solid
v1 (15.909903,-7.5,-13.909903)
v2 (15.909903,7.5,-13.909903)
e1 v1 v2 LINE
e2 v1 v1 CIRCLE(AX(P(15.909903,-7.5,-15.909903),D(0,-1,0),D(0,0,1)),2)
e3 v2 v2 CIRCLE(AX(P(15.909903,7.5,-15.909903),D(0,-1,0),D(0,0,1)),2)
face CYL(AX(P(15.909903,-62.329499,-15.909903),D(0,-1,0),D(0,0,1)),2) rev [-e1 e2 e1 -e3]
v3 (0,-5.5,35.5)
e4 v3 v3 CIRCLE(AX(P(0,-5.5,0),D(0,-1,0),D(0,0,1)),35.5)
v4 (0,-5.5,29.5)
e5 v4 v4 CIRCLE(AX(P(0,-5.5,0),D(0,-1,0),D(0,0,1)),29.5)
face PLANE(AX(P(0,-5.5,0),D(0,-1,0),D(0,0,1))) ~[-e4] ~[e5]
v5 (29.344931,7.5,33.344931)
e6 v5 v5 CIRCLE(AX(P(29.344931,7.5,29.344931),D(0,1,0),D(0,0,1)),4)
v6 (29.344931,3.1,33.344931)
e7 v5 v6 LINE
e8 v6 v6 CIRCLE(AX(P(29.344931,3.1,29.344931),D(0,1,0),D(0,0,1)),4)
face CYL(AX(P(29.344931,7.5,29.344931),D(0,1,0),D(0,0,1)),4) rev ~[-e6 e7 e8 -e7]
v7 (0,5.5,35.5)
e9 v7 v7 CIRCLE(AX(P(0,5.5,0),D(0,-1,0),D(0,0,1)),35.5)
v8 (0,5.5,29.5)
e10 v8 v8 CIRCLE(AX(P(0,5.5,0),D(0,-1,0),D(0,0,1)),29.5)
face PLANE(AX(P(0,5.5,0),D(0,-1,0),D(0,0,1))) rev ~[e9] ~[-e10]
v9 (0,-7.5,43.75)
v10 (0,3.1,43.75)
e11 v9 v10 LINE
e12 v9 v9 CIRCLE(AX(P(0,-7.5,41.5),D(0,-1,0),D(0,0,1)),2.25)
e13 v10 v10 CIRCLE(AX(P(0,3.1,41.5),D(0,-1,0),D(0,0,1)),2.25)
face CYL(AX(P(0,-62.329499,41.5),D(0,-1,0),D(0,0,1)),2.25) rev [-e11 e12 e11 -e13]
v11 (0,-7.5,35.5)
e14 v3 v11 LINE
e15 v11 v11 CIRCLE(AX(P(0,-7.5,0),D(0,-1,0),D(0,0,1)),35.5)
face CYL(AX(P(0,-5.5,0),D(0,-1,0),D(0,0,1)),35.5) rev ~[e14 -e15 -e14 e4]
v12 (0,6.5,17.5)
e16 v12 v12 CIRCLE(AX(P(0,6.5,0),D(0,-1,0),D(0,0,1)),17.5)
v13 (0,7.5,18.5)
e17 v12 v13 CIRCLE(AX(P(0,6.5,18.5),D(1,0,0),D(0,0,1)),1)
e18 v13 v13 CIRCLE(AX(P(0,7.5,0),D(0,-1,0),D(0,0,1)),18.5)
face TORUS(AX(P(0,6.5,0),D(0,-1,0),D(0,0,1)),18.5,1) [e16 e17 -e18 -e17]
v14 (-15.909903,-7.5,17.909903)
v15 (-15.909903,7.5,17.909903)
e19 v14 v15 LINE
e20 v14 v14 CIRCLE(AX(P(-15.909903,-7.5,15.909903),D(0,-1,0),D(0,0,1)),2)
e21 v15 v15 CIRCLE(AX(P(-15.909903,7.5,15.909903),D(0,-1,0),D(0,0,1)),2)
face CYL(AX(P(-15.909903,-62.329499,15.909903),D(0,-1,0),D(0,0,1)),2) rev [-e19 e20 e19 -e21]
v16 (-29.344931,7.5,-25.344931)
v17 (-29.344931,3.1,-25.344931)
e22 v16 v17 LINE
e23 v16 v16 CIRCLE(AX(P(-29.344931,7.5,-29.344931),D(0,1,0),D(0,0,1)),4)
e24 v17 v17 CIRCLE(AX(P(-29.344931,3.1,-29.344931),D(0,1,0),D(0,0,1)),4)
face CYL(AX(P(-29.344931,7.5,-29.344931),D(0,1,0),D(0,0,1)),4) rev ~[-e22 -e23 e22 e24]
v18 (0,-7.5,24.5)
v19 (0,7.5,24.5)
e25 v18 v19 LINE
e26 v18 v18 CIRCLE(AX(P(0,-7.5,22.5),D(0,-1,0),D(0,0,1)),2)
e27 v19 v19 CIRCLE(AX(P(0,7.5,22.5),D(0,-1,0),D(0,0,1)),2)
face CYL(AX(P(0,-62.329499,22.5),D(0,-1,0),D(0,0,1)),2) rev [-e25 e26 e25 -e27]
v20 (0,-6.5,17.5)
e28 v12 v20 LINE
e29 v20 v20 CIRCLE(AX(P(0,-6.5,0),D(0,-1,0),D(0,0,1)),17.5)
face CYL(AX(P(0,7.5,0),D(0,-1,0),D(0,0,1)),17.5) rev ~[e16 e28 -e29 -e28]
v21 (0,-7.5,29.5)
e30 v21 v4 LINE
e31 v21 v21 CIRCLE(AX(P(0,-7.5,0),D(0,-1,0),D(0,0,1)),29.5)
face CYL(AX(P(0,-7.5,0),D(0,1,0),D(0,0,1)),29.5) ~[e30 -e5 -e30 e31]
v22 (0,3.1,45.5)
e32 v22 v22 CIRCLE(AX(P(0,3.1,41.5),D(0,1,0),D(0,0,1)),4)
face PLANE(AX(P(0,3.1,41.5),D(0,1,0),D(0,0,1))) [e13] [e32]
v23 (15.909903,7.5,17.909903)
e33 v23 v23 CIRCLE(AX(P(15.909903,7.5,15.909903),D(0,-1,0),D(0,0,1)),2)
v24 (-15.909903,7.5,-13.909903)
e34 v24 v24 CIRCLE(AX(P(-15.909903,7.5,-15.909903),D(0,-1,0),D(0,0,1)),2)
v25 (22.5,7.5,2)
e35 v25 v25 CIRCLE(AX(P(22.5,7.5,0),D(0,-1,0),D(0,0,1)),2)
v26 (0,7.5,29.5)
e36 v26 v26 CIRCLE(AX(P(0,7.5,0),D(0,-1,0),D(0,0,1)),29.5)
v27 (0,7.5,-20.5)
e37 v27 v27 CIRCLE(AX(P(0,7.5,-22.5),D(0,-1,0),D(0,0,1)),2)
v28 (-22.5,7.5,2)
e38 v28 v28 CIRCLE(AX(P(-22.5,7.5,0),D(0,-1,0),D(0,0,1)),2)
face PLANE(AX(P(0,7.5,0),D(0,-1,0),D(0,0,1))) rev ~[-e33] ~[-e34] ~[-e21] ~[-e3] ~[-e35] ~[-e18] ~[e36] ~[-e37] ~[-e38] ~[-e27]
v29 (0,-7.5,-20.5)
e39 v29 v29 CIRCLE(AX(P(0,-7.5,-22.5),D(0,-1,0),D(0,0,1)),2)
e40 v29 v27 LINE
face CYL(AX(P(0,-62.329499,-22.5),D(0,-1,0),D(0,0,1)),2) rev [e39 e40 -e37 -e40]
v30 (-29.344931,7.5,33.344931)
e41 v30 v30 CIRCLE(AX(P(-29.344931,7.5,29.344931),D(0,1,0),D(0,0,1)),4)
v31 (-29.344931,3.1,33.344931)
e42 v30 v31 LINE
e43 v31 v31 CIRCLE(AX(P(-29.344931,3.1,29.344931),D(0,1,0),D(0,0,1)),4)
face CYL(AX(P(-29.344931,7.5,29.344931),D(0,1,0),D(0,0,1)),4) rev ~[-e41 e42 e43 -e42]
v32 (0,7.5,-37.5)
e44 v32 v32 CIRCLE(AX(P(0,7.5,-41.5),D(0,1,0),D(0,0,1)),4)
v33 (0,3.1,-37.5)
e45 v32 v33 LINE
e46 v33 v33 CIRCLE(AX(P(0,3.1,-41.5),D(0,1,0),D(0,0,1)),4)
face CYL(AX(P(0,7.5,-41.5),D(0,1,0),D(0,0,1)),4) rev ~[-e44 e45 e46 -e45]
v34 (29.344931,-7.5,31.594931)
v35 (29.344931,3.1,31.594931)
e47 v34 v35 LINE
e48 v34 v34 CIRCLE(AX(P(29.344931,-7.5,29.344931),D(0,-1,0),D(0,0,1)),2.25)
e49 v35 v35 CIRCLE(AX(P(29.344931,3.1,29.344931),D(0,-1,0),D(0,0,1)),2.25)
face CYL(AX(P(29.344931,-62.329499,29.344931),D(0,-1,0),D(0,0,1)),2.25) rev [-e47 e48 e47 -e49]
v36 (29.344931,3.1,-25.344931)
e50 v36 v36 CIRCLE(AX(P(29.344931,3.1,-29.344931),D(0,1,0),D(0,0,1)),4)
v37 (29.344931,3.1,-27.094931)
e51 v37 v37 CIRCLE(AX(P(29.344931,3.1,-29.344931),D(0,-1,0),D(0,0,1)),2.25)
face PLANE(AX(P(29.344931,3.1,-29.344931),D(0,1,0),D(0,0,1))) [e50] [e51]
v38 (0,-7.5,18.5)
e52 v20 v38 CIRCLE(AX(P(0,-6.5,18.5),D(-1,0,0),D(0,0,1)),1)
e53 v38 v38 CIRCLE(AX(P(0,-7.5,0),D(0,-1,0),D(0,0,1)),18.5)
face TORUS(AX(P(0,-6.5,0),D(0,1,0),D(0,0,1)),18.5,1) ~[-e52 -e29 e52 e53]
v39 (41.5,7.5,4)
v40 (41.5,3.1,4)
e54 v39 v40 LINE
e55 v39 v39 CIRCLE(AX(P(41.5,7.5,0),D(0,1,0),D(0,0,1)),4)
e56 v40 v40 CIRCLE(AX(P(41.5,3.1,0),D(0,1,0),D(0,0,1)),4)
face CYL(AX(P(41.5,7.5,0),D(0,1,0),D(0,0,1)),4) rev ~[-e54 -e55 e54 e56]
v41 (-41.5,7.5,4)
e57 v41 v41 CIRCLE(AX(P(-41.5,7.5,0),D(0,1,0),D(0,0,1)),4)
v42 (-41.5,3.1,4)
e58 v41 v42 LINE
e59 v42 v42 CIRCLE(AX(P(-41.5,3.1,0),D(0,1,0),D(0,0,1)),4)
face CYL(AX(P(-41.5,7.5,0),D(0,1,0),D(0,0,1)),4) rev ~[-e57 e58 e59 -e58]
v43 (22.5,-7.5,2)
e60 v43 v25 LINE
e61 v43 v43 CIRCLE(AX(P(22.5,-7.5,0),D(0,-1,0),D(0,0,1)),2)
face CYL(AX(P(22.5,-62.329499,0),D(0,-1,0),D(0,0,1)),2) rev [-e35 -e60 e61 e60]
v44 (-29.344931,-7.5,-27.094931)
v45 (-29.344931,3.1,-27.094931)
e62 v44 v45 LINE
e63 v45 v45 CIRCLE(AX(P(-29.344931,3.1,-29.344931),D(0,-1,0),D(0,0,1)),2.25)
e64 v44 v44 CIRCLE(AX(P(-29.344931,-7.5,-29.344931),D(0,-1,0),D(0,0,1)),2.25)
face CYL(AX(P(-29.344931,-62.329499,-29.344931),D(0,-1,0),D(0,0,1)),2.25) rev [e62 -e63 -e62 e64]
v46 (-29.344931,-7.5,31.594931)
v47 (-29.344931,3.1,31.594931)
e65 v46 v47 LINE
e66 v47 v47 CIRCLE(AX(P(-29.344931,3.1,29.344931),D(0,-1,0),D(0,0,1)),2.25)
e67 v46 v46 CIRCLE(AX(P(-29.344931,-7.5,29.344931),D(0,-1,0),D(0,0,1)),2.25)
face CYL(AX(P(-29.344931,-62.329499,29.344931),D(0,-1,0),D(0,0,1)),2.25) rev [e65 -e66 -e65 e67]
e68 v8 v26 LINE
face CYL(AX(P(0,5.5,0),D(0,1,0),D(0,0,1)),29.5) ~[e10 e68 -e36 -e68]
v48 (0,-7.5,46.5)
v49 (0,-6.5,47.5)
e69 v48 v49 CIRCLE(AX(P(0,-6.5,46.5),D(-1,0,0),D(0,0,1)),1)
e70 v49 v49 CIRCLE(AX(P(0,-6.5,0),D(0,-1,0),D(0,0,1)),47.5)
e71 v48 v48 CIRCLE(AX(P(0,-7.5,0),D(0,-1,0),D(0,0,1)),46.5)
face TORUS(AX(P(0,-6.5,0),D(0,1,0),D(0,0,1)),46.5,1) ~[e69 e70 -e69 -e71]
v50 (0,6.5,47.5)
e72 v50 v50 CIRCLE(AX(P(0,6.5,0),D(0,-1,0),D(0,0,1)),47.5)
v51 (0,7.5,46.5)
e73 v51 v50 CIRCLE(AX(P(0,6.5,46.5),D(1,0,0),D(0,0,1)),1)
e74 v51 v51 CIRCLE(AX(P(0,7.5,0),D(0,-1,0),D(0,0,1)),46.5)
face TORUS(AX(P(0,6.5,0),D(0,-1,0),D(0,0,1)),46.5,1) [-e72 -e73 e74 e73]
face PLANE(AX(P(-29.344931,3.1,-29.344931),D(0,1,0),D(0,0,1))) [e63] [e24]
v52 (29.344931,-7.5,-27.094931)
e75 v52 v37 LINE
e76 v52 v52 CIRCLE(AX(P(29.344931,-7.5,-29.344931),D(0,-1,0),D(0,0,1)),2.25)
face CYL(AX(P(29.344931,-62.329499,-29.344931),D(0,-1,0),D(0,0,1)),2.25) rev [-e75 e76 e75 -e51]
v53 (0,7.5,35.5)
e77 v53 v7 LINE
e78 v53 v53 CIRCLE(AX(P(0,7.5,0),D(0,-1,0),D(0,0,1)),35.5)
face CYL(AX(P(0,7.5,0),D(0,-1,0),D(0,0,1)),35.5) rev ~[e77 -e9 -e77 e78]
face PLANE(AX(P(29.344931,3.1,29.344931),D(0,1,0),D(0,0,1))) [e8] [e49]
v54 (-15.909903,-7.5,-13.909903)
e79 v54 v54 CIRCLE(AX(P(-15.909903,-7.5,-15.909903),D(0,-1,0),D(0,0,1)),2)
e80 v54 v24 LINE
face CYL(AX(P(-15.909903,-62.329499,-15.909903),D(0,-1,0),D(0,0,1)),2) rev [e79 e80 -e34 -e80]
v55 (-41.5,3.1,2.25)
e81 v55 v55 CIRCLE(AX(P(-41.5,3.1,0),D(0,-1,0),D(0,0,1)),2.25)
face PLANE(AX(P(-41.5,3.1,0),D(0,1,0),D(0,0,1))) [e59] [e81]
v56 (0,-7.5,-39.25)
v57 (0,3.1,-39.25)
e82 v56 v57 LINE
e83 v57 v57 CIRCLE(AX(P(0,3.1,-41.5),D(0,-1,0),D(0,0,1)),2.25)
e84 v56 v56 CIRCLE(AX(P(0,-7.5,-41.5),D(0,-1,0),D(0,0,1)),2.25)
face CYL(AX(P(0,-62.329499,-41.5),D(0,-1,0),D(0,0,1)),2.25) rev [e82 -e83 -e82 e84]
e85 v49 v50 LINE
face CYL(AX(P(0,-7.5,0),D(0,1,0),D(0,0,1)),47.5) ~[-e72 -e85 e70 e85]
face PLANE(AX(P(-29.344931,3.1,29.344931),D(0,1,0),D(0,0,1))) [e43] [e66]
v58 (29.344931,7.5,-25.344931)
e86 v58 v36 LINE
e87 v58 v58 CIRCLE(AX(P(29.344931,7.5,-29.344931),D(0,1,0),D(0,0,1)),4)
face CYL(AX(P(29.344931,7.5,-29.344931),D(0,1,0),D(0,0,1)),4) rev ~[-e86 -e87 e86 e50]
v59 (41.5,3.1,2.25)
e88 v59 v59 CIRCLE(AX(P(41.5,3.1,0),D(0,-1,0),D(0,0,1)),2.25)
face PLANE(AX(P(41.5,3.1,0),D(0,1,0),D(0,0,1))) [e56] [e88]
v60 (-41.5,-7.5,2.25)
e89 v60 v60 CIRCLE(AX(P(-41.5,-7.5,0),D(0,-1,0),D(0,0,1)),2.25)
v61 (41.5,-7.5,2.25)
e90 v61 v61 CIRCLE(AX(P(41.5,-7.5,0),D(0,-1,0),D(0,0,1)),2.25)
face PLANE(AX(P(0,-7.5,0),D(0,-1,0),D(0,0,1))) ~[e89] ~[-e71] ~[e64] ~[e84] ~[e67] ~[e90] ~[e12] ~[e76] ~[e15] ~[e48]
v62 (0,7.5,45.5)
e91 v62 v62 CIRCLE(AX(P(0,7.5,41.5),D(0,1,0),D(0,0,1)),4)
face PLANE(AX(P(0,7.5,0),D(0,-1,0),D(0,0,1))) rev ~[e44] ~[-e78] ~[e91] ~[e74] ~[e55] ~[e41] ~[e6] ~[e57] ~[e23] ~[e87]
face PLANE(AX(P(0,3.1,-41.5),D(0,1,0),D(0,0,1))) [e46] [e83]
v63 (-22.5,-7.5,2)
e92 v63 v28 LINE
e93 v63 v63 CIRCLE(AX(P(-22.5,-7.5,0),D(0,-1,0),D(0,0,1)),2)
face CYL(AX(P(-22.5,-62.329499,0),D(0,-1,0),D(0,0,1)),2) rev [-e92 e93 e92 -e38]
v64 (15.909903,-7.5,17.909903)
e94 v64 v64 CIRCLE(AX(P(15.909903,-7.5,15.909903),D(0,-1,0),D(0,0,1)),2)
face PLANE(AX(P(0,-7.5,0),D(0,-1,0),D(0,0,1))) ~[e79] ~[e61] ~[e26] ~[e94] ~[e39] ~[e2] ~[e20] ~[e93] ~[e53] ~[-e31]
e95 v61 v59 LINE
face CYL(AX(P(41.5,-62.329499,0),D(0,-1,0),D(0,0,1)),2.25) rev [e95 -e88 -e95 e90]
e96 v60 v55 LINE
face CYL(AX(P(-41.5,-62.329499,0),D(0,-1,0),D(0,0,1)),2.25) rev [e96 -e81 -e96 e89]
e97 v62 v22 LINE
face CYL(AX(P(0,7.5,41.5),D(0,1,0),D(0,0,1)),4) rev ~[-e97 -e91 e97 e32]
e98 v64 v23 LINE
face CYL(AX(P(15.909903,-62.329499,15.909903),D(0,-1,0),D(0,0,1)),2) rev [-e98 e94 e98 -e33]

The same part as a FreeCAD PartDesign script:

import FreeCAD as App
import Part
import Sketcher


def edges_at(feature, points):
    """Names of the edges that pass closest to the given points."""
    edges = feature.Shape.Edges
    near = lambda p: min(range(len(edges)), key=lambda i: edges[i].distToShape(Part.Vertex(*p))[0])
    return sorted({f"Edge{near(p) + 1}" for p in points})


def add_polygon(sketch, points):
    """Adds a closed chain of lines whose ends are joined by coincident constraints."""
    first, n = sketch.GeometryCount, len(points)
    for a, b in zip(points, points[1:] + points[:1]):
        sketch.addGeometry(Part.LineSegment(App.Vector(*a, 0), App.Vector(*b, 0)), False)
    for i in range(n):
        sketch.addConstraint(Sketcher.Constraint("Coincident", first + i, 2, first + (i + 1) % n, 1))

doc = App.newDocument("Part")
params = doc.addObject("Spreadsheet::Sheet", "Params")
for row, (alias, value) in enumerate([
    ("sketch1_width", "12 mm"),
    ("sketch1_width2", "6 mm"),
    ("sketch1_height", "15 mm"),
    ("sketch1_height2", "2 mm"),
    ("revolution_angle", "360 deg"),
    ("sketch2_diameter", "4 mm"),
    ("sketch2_diameter2", "4.5 mm"),
    ("sketch3_diameter", "8 mm"),
    ("pocket2_length", "4.4 mm"),
    ("fillet_radius", "1 mm"),
], start=1):
    params.set(f"A{row}", alias)
    params.set(f"B{row}", "=" + value)
    params.setAlias(f"B{row}", alias)

body = doc.addObject("PartDesign::Body", "Body")

sketch1 = body.newObject("Sketcher::SketchObject", "Sketch")
sketch1.AttachmentSupport = (doc.getObject("XY_Plane"), [""])
sketch1.MapMode = "FlatFace"
add_polygon(sketch1, [(17.5, 7.5), (17.5, -7.5), (29.5, -7.5), (29.5, -5.5), (35.5, -5.5), (35.5, -7.5), (47.5, -7.5), (47.5, 7.5), (35.5, 7.5), (35.5, 5.5), (29.5, 5.5), (29.5, 7.5)])
sketch1.addConstraint([
    Sketcher.Constraint("Vertical", 0),
    Sketcher.Constraint("Horizontal", 1),
    Sketcher.Constraint("Vertical", 2),
    Sketcher.Constraint("Horizontal", 3),
    Sketcher.Constraint("Vertical", 4),
    Sketcher.Constraint("Horizontal", 5),
    Sketcher.Constraint("Vertical", 6),
    Sketcher.Constraint("Horizontal", 7),
    Sketcher.Constraint("Vertical", 8),
    Sketcher.Constraint("Horizontal", 9),
    Sketcher.Constraint("Vertical", 10),
    Sketcher.Constraint("Horizontal", 11),
    Sketcher.Constraint("Symmetric", 4, 2, 7, 2, -1),
    Sketcher.Constraint("Symmetric", 2, 2, 9, 2, -1),
    Sketcher.Constraint("Horizontal", 1, 2, 4, 2),
    Sketcher.Constraint("Horizontal", 7, 2, 10, 2),
    Sketcher.Constraint("Equal", 1, 5),
    Sketcher.Constraint("DistanceX", 1, 1, 1, 2, 12.0),
    Sketcher.Constraint("DistanceX", 3, 1, 3, 2, 6.0),
    Sketcher.Constraint("DistanceY", 0, 2, 0, 1, 15.0),
    Sketcher.Constraint("DistanceY", 2, 1, 2, 2, 2.0),
    Sketcher.Constraint("DistanceX", -1, 1, 0, 2, 17.5),
])
sketch1.setExpression("Constraints[29]", "Params.sketch1_width")
sketch1.setExpression("Constraints[30]", "Params.sketch1_width2")
sketch1.setExpression("Constraints[31]", "Params.sketch1_height")
sketch1.setExpression("Constraints[32]", "Params.sketch1_height2")
revolution = body.newObject("PartDesign::Revolution", "Revolution")
revolution.Profile = sketch1
revolution.ReferenceAxis = (sketch1, ["V_Axis"])
revolution.setExpression("Angle", "Params.revolution_angle")

sketch2 = body.newObject("Sketcher::SketchObject", "Sketch001")
sketch2.AttachmentSupport = (doc.getObject("XZ_Plane"), [""])
sketch2.MapMode = "FlatFace"
sketch2.AttachmentOffset = App.Placement(App.Vector(0, 0, -7.5), App.Rotation())
sketch2.addGeometry([
    Part.Circle(App.Vector(0, -22.5, 0), App.Vector(0, 0, 1), 2),
    Part.Circle(App.Vector(0, -41.5, 0), App.Vector(0, 0, 1), 2.2),
    Part.Circle(App.Vector(15.9, -15.9, 0), App.Vector(0, 0, 1), 2),
    Part.Circle(App.Vector(22.5, 0, 0), App.Vector(0, 0, 1), 2),
    Part.Circle(App.Vector(15.9, 15.9, 0), App.Vector(0, 0, 1), 2),
    Part.Circle(App.Vector(0, 22.5, 0), App.Vector(0, 0, 1), 2),
    Part.Circle(App.Vector(-15.9, 15.9, 0), App.Vector(0, 0, 1), 2),
    Part.Circle(App.Vector(-22.5, 0, 0), App.Vector(0, 0, 1), 2),
    Part.Circle(App.Vector(-15.9, -15.9, 0), App.Vector(0, 0, 1), 2),
    Part.Circle(App.Vector(29.3, -29.3, 0), App.Vector(0, 0, 1), 2.2),
    Part.Circle(App.Vector(41.5, 0, 0), App.Vector(0, 0, 1), 2.2),
    Part.Circle(App.Vector(29.3, 29.3, 0), App.Vector(0, 0, 1), 2.2),
    Part.Circle(App.Vector(0, 41.5, 0), App.Vector(0, 0, 1), 2.2),
    Part.Circle(App.Vector(-29.3, 29.3, 0), App.Vector(0, 0, 1), 2.2),
    Part.Circle(App.Vector(-41.5, 0, 0), App.Vector(0, 0, 1), 2.2),
    Part.Circle(App.Vector(-29.3, -29.3, 0), App.Vector(0, 0, 1), 2.2),
], False)
sketch2.addConstraint([
    Sketcher.Constraint("Equal", 0, 2),
    Sketcher.Constraint("Equal", 2, 3),
    Sketcher.Constraint("Equal", 3, 4),
    Sketcher.Constraint("Equal", 4, 5),
    Sketcher.Constraint("Equal", 5, 6),
    Sketcher.Constraint("Equal", 6, 7),
    Sketcher.Constraint("Equal", 7, 8),
    Sketcher.Constraint("Equal", 1, 9),
    Sketcher.Constraint("Equal", 9, 10),
    Sketcher.Constraint("Equal", 10, 11),
    Sketcher.Constraint("Equal", 11, 12),
    Sketcher.Constraint("Equal", 12, 13),
    Sketcher.Constraint("Equal", 13, 14),
    Sketcher.Constraint("Equal", 14, 15),
    Sketcher.Constraint("Symmetric", 0, 3, 5, 3, -1, 1),
    Sketcher.Constraint("Symmetric", 2, 3, 6, 3, -1, 1),
    Sketcher.Constraint("Symmetric", 3, 3, 7, 3, -1, 1),
    Sketcher.Constraint("Symmetric", 4, 3, 8, 3, -1, 1),
    Sketcher.Constraint("Symmetric", 1, 3, 12, 3, -1, 1),
    Sketcher.Constraint("Symmetric", 9, 3, 13, 3, -1, 1),
    Sketcher.Constraint("Symmetric", 10, 3, 14, 3, -1, 1),
    Sketcher.Constraint("Symmetric", 11, 3, 15, 3, -1, 1),
    Sketcher.Constraint("Symmetric", 4, 3, 6, 3, -2),
    Sketcher.Constraint("Symmetric", 11, 3, 13, 3, -2),
    Sketcher.Constraint("PointOnObject", 0, 3, -2),
    Sketcher.Constraint("PointOnObject", 1, 3, -2),
    Sketcher.Constraint("PointOnObject", 3, 3, -1),
    Sketcher.Constraint("PointOnObject", 10, 3, -1),
    Sketcher.Constraint("Diameter", 0, 4.0),
    Sketcher.Constraint("Diameter", 1, 4.5),
    Sketcher.Constraint("DistanceY", 1, 3, 0, 3, 19.0),
    Sketcher.Constraint("DistanceY", 0, 3, 5, 3, 45.0),
    Sketcher.Constraint("DistanceX", 3, 3, 10, 3, 19.0),
    Sketcher.Constraint("DistanceX", -1, 1, 3, 3, 22.5),
    Sketcher.Constraint("DistanceX", -1, 1, 9, 3, 29.344931),
    Sketcher.Constraint("DistanceY", 9, 3, -1, 1, 29.344931),
    Sketcher.Constraint("DistanceX", 2, 3, 9, 3, 13.435029),
    Sketcher.Constraint("DistanceY", 9, 3, 2, 3, 13.435029),
])
sketch2.setExpression("Constraints[28]", "Params.sketch2_diameter")
sketch2.setExpression("Constraints[29]", "Params.sketch2_diameter2")
pocket1 = body.newObject("PartDesign::Pocket", "Pocket")
pocket1.Profile = sketch2
pocket1.Type = "ThroughAll"
pocket1.Midplane = True

sketch3 = body.newObject("Sketcher::SketchObject", "Sketch002")
sketch3.AttachmentSupport = (doc.getObject("XZ_Plane"), [""])
sketch3.MapMode = "FlatFace"
sketch3.AttachmentOffset = App.Placement(App.Vector(0, 0, -7.5), App.Rotation())
sketch3.addGeometry([
    Part.Circle(App.Vector(0, -41.5, 0), App.Vector(0, 0, 1), 4),
    Part.Circle(App.Vector(29.3, -29.3, 0), App.Vector(0, 0, 1), 4),
    Part.Circle(App.Vector(41.5, 0, 0), App.Vector(0, 0, 1), 4),
    Part.Circle(App.Vector(29.3, 29.3, 0), App.Vector(0, 0, 1), 4),
    Part.Circle(App.Vector(0, 41.5, 0), App.Vector(0, 0, 1), 4),
    Part.Circle(App.Vector(-29.3, 29.3, 0), App.Vector(0, 0, 1), 4),
    Part.Circle(App.Vector(-41.5, 0, 0), App.Vector(0, 0, 1), 4),
    Part.Circle(App.Vector(-29.3, -29.3, 0), App.Vector(0, 0, 1), 4),
], False)
sketch3.addConstraint([
    Sketcher.Constraint("Equal", 0, 1),
    Sketcher.Constraint("Equal", 1, 2),
    Sketcher.Constraint("Equal", 2, 3),
    Sketcher.Constraint("Equal", 3, 4),
    Sketcher.Constraint("Equal", 4, 5),
    Sketcher.Constraint("Equal", 5, 6),
    Sketcher.Constraint("Equal", 6, 7),
    Sketcher.Constraint("Symmetric", 0, 3, 4, 3, -1, 1),
    Sketcher.Constraint("Symmetric", 1, 3, 5, 3, -1, 1),
    Sketcher.Constraint("Symmetric", 2, 3, 6, 3, -1, 1),
    Sketcher.Constraint("Symmetric", 3, 3, 7, 3, -1, 1),
    Sketcher.Constraint("Symmetric", 3, 3, 5, 3, -2),
    Sketcher.Constraint("PointOnObject", 0, 3, -2),
    Sketcher.Constraint("PointOnObject", 2, 3, -1),
    Sketcher.Constraint("Diameter", 0, 8.0),
    Sketcher.Constraint("DistanceY", 0, 3, 4, 3, 83.0),
    Sketcher.Constraint("DistanceX", -1, 1, 2, 3, 41.5),
    Sketcher.Constraint("DistanceX", -1, 1, 1, 3, 29.344931),
    Sketcher.Constraint("DistanceY", 1, 3, -1, 1, 29.344931),
])
sketch3.setExpression("Constraints[14]", "Params.sketch3_diameter")
pocket2 = body.newObject("PartDesign::Pocket", "Pocket001")
pocket2.Profile = sketch3
pocket2.setExpression("Length", "Params.pocket2_length")
pocket2.Reversed = True
doc.recompute()

fillet = body.newObject("PartDesign::Fillet", "Fillet")
fillet.Base = (pocket2, edges_at(pocket2, [
    (0, -7.5, -47.5),
    (0, 7.5, -47.5),
    (0, 7.5, -17.5),
    (0, -7.5, -17.5),
]))
fillet.setExpression("Radius", "Params.fillet_radius")

doc.recompute()
